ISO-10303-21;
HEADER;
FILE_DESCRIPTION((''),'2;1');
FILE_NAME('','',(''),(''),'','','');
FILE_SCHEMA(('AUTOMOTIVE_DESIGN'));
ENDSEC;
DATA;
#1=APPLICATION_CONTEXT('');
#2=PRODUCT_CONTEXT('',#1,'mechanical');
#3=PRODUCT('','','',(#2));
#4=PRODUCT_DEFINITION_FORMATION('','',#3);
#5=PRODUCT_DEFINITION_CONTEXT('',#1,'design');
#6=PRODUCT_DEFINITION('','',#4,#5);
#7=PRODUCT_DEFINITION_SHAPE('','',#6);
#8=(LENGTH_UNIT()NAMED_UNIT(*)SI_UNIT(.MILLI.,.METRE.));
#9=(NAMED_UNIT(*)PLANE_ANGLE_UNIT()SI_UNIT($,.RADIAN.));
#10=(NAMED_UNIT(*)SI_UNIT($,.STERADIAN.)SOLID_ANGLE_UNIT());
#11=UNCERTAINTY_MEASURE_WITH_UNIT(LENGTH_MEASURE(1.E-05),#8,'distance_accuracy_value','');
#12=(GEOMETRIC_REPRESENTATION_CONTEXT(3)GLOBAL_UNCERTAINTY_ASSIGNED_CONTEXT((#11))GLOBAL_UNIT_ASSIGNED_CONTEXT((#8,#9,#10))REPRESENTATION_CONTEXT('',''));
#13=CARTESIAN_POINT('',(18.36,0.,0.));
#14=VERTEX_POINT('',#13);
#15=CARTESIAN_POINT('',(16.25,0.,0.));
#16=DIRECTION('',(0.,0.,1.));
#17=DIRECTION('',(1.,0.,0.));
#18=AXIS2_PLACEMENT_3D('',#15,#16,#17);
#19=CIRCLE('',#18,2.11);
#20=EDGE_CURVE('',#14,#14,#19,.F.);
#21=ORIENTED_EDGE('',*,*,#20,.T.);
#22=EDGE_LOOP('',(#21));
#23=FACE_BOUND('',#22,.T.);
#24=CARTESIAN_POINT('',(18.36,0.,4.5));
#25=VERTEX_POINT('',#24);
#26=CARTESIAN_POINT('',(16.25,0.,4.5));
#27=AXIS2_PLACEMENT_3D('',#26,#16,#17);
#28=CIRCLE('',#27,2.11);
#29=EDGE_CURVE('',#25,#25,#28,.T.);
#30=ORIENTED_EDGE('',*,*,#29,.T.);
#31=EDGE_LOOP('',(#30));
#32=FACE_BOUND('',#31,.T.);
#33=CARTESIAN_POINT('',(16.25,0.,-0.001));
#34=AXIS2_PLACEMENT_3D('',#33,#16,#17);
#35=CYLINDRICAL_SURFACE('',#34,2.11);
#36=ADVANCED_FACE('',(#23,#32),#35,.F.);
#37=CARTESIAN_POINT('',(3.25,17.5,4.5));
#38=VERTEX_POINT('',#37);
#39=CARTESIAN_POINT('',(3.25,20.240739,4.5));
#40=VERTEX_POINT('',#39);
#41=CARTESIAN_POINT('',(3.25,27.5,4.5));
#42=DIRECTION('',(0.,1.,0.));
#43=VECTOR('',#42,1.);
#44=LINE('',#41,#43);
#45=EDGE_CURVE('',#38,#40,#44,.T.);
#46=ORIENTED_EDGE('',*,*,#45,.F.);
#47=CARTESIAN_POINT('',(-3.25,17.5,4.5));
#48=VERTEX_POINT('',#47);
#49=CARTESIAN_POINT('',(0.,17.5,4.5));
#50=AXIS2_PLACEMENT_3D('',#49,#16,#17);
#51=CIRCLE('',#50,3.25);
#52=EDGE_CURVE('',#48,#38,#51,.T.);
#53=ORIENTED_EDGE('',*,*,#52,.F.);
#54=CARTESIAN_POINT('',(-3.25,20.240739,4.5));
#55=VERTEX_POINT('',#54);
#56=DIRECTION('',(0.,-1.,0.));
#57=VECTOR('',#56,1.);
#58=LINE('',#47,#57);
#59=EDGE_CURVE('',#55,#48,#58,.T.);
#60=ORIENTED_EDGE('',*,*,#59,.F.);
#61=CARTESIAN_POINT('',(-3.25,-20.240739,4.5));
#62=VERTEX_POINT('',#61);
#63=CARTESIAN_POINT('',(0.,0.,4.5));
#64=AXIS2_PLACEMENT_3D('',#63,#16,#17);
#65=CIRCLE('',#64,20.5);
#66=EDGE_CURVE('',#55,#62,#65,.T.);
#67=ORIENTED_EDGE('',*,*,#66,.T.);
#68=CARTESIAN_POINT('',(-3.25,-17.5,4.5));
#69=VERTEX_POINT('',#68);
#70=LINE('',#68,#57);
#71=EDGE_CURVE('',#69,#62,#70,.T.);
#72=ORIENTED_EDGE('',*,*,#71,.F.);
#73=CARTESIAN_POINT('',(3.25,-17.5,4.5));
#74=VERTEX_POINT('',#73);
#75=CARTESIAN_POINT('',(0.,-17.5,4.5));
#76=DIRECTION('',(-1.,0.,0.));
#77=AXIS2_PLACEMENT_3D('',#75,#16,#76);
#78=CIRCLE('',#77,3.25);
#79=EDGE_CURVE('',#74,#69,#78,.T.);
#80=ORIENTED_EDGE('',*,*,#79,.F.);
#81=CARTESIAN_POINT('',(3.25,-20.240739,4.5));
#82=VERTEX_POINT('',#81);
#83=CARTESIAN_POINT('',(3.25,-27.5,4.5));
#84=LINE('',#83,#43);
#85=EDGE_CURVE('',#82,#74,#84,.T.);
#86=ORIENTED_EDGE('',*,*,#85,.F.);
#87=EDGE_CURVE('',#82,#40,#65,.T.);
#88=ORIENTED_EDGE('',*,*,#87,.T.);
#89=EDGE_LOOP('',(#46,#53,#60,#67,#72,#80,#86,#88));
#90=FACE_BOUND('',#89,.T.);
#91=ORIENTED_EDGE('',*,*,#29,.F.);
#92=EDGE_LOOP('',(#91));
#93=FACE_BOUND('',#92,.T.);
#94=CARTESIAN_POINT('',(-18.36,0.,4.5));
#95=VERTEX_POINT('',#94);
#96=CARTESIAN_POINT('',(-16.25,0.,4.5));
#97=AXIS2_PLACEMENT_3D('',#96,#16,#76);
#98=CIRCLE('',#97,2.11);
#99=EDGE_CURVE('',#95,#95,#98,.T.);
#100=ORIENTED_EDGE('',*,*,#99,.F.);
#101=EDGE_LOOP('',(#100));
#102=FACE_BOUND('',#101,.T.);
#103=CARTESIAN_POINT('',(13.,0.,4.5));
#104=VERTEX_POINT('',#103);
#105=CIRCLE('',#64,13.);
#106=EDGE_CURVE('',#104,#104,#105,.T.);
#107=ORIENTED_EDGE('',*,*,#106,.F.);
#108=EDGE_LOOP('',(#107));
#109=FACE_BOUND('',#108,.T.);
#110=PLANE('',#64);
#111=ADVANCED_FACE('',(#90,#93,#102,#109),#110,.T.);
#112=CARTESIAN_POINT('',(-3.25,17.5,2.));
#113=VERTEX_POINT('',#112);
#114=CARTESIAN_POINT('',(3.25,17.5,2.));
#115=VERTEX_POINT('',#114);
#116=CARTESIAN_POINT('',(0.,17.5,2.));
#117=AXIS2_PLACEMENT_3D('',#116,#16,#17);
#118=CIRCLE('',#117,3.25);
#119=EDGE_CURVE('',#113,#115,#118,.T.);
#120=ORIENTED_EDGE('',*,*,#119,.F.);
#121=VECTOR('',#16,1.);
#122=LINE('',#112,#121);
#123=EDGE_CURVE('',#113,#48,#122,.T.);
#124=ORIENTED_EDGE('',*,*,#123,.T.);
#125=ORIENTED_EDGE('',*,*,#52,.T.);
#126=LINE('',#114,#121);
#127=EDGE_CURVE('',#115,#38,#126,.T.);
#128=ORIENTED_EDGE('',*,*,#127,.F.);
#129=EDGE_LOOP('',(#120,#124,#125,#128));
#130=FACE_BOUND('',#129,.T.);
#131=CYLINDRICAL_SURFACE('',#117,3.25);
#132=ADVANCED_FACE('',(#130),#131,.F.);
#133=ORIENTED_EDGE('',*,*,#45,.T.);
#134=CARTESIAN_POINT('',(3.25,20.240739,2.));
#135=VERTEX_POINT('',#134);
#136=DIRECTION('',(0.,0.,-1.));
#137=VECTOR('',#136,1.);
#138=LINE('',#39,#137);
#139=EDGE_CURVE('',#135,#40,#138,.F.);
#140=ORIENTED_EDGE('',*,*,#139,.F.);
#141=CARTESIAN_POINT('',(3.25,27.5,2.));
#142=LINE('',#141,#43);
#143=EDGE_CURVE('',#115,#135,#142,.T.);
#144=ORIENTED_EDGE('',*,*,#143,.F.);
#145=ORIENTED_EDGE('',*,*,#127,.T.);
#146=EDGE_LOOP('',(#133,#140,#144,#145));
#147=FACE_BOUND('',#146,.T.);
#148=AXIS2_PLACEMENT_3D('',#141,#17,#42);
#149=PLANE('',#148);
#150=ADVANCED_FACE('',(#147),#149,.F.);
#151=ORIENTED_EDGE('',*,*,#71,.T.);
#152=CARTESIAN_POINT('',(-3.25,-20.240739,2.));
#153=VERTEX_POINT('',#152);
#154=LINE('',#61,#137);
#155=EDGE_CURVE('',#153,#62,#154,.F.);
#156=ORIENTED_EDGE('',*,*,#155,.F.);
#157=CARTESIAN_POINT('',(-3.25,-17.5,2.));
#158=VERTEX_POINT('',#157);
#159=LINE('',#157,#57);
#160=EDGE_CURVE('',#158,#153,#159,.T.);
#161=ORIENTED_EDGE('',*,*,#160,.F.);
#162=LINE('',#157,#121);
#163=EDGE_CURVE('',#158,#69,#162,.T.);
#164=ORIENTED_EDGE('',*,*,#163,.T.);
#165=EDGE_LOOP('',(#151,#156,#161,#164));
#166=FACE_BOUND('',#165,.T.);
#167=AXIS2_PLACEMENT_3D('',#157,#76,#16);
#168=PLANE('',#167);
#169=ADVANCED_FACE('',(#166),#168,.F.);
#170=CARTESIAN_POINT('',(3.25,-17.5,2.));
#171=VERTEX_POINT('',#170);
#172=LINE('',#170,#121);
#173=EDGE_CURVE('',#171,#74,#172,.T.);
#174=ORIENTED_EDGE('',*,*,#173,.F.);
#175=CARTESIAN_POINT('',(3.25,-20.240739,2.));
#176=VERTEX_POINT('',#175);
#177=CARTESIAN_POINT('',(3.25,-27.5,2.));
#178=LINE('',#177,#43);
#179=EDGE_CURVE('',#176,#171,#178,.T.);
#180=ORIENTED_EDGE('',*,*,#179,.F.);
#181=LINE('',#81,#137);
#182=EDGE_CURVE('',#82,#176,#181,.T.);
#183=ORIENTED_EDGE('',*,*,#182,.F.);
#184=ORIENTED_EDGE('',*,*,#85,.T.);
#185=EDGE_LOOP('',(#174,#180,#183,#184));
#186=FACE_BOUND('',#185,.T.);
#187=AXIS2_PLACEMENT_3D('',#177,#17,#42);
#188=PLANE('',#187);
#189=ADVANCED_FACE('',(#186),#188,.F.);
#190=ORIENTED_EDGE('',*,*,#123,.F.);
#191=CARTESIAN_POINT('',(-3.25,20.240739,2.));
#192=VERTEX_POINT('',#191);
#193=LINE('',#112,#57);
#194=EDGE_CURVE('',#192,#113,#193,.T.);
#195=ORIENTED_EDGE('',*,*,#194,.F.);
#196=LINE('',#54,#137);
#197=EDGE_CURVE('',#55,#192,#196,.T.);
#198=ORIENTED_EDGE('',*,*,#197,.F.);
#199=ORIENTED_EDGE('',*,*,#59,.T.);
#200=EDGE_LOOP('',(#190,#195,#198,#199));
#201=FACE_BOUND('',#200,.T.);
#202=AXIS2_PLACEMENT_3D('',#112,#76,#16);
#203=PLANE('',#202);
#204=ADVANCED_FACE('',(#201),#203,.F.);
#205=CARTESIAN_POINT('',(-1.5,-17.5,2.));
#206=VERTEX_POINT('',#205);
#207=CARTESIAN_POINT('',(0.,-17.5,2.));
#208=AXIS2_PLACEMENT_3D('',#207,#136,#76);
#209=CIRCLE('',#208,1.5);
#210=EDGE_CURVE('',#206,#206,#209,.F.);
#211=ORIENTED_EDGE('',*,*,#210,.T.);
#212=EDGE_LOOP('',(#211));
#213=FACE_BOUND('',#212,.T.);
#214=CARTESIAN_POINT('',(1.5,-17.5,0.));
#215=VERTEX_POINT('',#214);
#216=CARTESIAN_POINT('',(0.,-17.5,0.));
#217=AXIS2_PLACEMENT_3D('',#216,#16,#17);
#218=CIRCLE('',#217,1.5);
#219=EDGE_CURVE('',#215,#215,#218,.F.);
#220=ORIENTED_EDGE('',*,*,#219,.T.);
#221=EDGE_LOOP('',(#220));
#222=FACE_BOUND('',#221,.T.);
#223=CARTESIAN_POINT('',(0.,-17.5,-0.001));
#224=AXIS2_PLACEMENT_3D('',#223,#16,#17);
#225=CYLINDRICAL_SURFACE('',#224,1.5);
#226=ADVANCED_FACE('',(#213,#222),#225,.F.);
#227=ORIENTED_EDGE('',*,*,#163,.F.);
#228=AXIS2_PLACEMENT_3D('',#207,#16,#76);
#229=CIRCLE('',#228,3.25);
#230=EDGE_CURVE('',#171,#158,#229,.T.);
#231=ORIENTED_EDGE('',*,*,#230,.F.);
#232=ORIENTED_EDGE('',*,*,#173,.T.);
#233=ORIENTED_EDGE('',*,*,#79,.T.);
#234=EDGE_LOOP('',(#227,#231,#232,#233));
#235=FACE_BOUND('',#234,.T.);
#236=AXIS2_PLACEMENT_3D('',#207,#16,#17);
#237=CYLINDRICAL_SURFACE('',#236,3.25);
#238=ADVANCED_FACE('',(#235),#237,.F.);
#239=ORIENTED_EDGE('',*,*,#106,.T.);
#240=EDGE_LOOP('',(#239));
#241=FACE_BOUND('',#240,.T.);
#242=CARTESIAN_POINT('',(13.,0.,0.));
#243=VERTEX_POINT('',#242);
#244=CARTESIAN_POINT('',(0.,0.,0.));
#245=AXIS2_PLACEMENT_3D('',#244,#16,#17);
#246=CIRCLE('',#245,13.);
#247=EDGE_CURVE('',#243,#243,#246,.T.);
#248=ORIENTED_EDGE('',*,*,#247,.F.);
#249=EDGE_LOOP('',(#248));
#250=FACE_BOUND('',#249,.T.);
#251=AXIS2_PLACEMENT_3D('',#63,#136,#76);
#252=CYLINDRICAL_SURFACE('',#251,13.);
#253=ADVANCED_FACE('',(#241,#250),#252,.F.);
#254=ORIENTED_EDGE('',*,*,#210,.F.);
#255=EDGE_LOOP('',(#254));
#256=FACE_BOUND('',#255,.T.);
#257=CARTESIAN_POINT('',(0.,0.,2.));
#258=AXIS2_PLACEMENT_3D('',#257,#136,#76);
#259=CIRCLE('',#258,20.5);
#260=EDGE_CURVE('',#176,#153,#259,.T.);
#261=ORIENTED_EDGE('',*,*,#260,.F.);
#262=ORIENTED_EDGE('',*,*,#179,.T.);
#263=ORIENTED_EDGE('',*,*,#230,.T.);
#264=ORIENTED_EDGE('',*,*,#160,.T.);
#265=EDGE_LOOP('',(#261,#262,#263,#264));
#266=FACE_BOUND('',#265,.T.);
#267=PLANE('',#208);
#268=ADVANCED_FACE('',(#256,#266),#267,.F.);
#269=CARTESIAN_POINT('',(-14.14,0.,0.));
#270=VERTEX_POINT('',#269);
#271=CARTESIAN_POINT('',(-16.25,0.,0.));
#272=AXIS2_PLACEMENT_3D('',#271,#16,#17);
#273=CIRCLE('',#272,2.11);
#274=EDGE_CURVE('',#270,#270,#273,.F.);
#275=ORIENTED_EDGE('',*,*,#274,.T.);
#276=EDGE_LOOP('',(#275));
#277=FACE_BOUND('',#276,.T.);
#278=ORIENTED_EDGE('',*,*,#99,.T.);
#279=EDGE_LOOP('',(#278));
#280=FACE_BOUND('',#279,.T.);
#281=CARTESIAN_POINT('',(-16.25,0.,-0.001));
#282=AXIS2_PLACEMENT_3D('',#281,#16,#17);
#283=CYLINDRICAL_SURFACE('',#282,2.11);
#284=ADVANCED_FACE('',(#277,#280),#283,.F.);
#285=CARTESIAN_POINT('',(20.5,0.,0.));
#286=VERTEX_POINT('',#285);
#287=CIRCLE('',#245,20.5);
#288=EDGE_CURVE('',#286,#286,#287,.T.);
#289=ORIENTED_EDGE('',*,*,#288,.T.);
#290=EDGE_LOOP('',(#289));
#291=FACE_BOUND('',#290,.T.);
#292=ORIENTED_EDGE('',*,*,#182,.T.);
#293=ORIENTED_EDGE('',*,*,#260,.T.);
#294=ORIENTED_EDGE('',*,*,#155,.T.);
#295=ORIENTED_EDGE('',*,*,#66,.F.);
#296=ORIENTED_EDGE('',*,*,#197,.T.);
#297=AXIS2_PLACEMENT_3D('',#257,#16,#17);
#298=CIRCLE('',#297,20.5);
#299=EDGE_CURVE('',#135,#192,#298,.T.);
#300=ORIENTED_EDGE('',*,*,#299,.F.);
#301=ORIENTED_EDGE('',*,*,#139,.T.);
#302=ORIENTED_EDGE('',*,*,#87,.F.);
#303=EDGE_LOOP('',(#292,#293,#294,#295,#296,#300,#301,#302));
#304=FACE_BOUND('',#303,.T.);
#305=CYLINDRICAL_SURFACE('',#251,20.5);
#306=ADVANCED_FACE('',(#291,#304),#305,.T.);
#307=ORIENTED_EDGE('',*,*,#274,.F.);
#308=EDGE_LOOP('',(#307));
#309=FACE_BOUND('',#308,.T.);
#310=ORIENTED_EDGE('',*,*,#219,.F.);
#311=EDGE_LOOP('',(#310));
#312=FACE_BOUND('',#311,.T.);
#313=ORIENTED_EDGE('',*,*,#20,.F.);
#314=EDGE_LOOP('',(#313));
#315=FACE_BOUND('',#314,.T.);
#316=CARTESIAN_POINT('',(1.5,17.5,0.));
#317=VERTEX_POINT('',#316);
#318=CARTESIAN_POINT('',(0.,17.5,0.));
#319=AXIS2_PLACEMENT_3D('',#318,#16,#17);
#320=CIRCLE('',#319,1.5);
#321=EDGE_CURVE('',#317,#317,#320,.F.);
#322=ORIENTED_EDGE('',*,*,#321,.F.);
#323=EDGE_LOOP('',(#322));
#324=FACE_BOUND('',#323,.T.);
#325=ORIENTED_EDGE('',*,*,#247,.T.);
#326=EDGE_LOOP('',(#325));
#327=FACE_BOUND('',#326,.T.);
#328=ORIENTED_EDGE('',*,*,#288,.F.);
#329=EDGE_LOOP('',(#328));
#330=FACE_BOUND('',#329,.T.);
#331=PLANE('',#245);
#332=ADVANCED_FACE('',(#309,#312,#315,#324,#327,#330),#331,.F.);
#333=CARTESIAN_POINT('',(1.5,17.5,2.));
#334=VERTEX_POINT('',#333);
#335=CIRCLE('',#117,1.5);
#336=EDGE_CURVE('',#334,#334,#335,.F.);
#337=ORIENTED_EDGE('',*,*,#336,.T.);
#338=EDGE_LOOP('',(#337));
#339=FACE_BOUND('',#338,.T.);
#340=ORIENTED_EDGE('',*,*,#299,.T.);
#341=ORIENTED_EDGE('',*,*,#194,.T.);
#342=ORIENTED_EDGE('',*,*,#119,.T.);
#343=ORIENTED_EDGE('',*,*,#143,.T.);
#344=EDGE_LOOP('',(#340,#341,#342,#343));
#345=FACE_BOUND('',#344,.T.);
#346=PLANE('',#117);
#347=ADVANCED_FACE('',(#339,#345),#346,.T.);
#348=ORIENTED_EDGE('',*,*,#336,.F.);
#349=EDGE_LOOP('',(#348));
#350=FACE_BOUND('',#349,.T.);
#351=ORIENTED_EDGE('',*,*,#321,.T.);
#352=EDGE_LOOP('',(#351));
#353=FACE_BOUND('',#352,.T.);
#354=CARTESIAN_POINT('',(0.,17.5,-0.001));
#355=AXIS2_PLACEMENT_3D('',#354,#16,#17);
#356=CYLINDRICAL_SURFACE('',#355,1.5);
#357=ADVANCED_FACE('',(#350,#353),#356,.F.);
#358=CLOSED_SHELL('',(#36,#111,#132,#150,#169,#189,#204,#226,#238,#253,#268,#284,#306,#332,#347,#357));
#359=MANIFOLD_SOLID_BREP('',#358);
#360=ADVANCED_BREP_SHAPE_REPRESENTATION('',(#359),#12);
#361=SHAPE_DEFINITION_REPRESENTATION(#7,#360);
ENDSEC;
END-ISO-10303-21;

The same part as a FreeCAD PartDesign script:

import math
import FreeCAD as App
import Part
import Sketcher
from FreeCAD import Vector

doc = App.newDocument("Part")
body = doc.addObject("PartDesign::Body", "Body")

sketch1 = body.newObject("Sketcher::SketchObject", "Sketch")
sketch1.AttachmentSupport = (doc.getObject("XY_Plane"), [""])
sketch1.MapMode = "FlatFace"
sketch1.addGeometry(Part.Circle(Vector(0, 0, 0), Vector(0, 0, 1), 20), False)
sketch1.addGeometry(Part.Circle(Vector(0, 0, 0), Vector(0, 0, 1), 13), False)
sketch1.addConstraint(Sketcher.Constraint("Coincident", 0, 3, -1, 1))
sketch1.addConstraint(Sketcher.Constraint("Coincident", 1, 3, -1, 1))
sketch1.addConstraint(Sketcher.Constraint("Diameter", 0, 41.0))
sketch1.addConstraint(Sketcher.Constraint("Diameter", 1, 26.0))
pad1 = body.newObject("PartDesign::Pad", "Pad")
pad1.Profile = sketch1
pad1.Length = 4.5

sketch2 = body.newObject("Sketcher::SketchObject", "Sketch001")
sketch2.AttachmentSupport = (doc.getObject("XY_Plane"), [""])
sketch2.MapMode = "FlatFace"
sketch2.AttachmentOffset = App.Placement(Vector(0, 0, 4.5), App.Rotation())
sketch2.addGeometry(Part.Circle(Vector(0, 17.5, 0), Vector(0, 0, 1), 1.5), False)
sketch2.addConstraint(Sketcher.Constraint("PointOnObject", 0, 3, -2))
sketch2.addConstraint(Sketcher.Constraint("Diameter", 0, 3.0))
sketch2.addConstraint(Sketcher.Constraint("DistanceY", -1, 1, 0, 3, 17.5))
pocket1 = body.newObject("PartDesign::Pocket", "Pocket")
pocket1.Profile = sketch2
pocket1.Type = "UpToFirst"

sketch3 = body.newObject("Sketcher::SketchObject", "Sketch002")
sketch3.AttachmentSupport = (doc.getObject("XY_Plane"), [""])
sketch3.MapMode = "FlatFace"
sketch3.AttachmentOffset = App.Placement(Vector(0, 0, 4.5), App.Rotation())
sketch3.addGeometry(Part.Circle(Vector(16.2, 0, 0), Vector(0, 0, 1), 2.1), False)
sketch3.addConstraint(Sketcher.Constraint("PointOnObject", 0, 3, -1))
sketch3.addConstraint(Sketcher.Constraint("Diameter", 0, 4.22))
sketch3.addConstraint(Sketcher.Constraint("DistanceX", -1, 1, 0, 3, 16.25))
pocket2 = body.newObject("PartDesign::Pocket", "Pocket001")
pocket2.Profile = sketch3
pocket2.Type = "UpToFirst"

sketch4 = body.newObject("Sketcher::SketchObject", "Sketch003")
sketch4.AttachmentSupport = (doc.getObject("XY_Plane"), [""])
sketch4.MapMode = "FlatFace"
sketch4.AttachmentOffset = App.Placement(Vector(0, 0, 4.5), App.Rotation())
sketch4.addGeometry(Part.Circle(Vector(0, -17.5, 0), Vector(0, 0, 1), 1.5), False)
sketch4.addConstraint(Sketcher.Constraint("PointOnObject", 0, 3, -2))
sketch4.addConstraint(Sketcher.Constraint("Diameter", 0, 3.0))
sketch4.addConstraint(Sketcher.Constraint("DistanceY", 0, 3, -1, 1, 17.5))
pocket3 = body.newObject("PartDesign::Pocket", "Pocket002")
pocket3.Profile = sketch4
pocket3.Type = "UpToFirst"

sketch5 = body.newObject("Sketcher::SketchObject", "Sketch004")
sketch5.AttachmentSupport = (doc.getObject("XY_Plane"), [""])
sketch5.MapMode = "FlatFace"
sketch5.AttachmentOffset = App.Placement(Vector(0, 0, 4.5), App.Rotation())
sketch5.addGeometry(Part.Circle(Vector(-16.2, 0, 0), Vector(0, 0, 1), 2.1), False)
sketch5.addConstraint(Sketcher.Constraint("PointOnObject", 0, 3, -1))
sketch5.addConstraint(Sketcher.Constraint("Diameter", 0, 4.22))
sketch5.addConstraint(Sketcher.Constraint("DistanceX", 0, 3, -1, 1, 16.25))
pocket4 = body.newObject("PartDesign::Pocket", "Pocket003")
pocket4.Profile = sketch5
pocket4.Type = "UpToFirst"

sketch6 = body.newObject("Sketcher::SketchObject", "Sketch005")
sketch6.AttachmentSupport = (doc.getObject("XY_Plane"), [""])
sketch6.MapMode = "FlatFace"
sketch6.AttachmentOffset = App.Placement(Vector(0, 0, 4.5), App.Rotation())
sketch6.addGeometry(Part.LineSegment(Vector(-3.2, 27.5, 0), Vector(-3.2, 17.5, 0)), False)
sketch6.addGeometry(Part.ArcOfCircle(Part.Circle(Vector(0, 17.5, 0), Vector(0, 0, 1), 3.2), math.radians(180), math.radians(360)), False)
sketch6.addGeometry(Part.LineSegment(Vector(3.2, 17.5, 0), Vector(3.2, 27.5, 0)), False)
sketch6.addGeometry(Part.LineSegment(Vector(3.2, 27.5, 0), Vector(-3.2, 27.5, 0)), False)
sketch6.addGeometry(Part.LineSegment(Vector(-3.2, -27.5, 0), Vector(3.2, -27.5, 0)), False)
sketch6.addGeometry(Part.LineSegment(Vector(3.2, -27.5, 0), Vector(3.2, -17.5, 0)), False)
sketch6.addGeometry(Part.ArcOfCircle(Part.Circle(Vector(0, -17.5, 0), Vector(0, 0, 1), 3.2), math.radians(0), math.radians(180)), False)
sketch6.addGeometry(Part.LineSegment(Vector(-3.2, -17.5, 0), Vector(-3.2, -27.5, 0)), False)
sketch6.addConstraint(Sketcher.Constraint("Tangent", 0, 2, 1, 1))
sketch6.addConstraint(Sketcher.Constraint("Tangent", 1, 2, 2, 1))
sketch6.addConstraint(Sketcher.Constraint("Coincident", 2, 2, 3, 1))
sketch6.addConstraint(Sketcher.Constraint("Coincident", 3, 2, 0, 1))
sketch6.addConstraint(Sketcher.Constraint("Coincident", 4, 2, 5, 1))
sketch6.addConstraint(Sketcher.Constraint("Tangent", 5, 2, 6, 1))
sketch6.addConstraint(Sketcher.Constraint("Tangent", 6, 2, 7, 1))
sketch6.addConstraint(Sketcher.Constraint("Coincident", 7, 2, 4, 1))
sketch6.addConstraint(Sketcher.Constraint("Vertical", 0))
sketch6.addConstraint(Sketcher.Constraint("Vertical", 2))
sketch6.addConstraint(Sketcher.Constraint("Horizontal", 3))
sketch6.addConstraint(Sketcher.Constraint("Horizontal", 4))
sketch6.addConstraint(Sketcher.Constraint("Vertical", 5))
sketch6.addConstraint(Sketcher.Constraint("Vertical", 7))
sketch6.addConstraint(Sketcher.Constraint("Equal", 1, 6))
sketch6.addConstraint(Sketcher.Constraint("Symmetric", 1, 3, 6, 3, -1, 1))
sketch6.addConstraint(Sketcher.Constraint("Symmetric", 2, 2, 4, 2, -1))
sketch6.addConstraint(Sketcher.Constraint("DistanceY", 0, 2, 0, 1, 10.0))
sketch6.addConstraint(Sketcher.Constraint("Radius", 1, 3.25))
sketch6.addConstraint(Sketcher.Constraint("DistanceY", 6, 3, 1, 3, 35.0))
pocket5 = body.newObject("PartDesign::Pocket", "Pocket004")
pocket5.Profile = sketch6
pocket5.Length = 2.5

doc.recompute()
